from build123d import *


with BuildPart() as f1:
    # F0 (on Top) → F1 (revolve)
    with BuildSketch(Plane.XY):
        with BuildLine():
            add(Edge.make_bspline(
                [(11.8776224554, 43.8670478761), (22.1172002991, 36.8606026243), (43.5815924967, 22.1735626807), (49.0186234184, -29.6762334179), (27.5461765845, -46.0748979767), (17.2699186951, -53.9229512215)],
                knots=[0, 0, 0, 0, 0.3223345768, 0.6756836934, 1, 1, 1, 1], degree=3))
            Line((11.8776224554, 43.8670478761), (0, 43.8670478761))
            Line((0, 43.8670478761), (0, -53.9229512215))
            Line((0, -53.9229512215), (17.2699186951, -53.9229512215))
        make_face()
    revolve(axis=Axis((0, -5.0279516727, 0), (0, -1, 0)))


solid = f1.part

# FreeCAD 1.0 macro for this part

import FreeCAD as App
import Part
import Sketcher

doc = App.newDocument("Part")
body = doc.addObject("PartDesign::Body", "Body")

sketch1 = doc.addObject("Sketcher::SketchObject", "Sketch")
body.addObject(sketch1)
sketch1.AttachmentSupport = (doc.XY_Plane, [""])
sketch1.MapMode = "FlatFace"
sketch1.addGeometry([
    Part.BSplineCurve([App.Vector(11.877622, 43.867048, 0), App.Vector(22.1172, 36.860603, 0), App.Vector(43.581592, 22.173563, 0), App.Vector(49.018623, -29.676233, 0), App.Vector(27.546177, -46.074898, 0), App.Vector(17.269919, -53.922951, 0)], [4, 1, 1, 4], [0, 0.322334577, 0.675683693, 1], False, 3, [1, 1, 1, 1, 1, 1], False),
    Part.LineSegment(App.Vector(11.877622, 43.867048, 0), App.Vector(0, 43.867048, 0)),
    Part.LineSegment(App.Vector(0, 43.867048, 0), App.Vector(0, -53.922951, 0)),
    Part.LineSegment(App.Vector(0, -53.922951, 0), App.Vector(17.269919, -53.922951, 0)),
], False)
sketch1.addConstraint([
    Sketcher.Constraint("Block", 0),
    Sketcher.Constraint("Coincident", 0, 1, 1, 1),
    Sketcher.Constraint("Coincident", 1, 2, 2, 1),
    Sketcher.Constraint("Coincident", 2, 2, 3, 1),
    Sketcher.Constraint("Coincident", 3, 2, 0, 2),
    Sketcher.Constraint("Horizontal", 1),
    Sketcher.Constraint("Vertical", 2),
    Sketcher.Constraint("Horizontal", 3),
    Sketcher.Constraint("PointOnObject", 1, 2, -2),
])
revolution = doc.addObject("PartDesign::Revolution", "Revolution")
body.addObject(revolution)
revolution.Profile = sketch1
revolution.ReferenceAxis = (sketch1, ["V_Axis"])
revolution.Angle = 360

doc.recompute()
